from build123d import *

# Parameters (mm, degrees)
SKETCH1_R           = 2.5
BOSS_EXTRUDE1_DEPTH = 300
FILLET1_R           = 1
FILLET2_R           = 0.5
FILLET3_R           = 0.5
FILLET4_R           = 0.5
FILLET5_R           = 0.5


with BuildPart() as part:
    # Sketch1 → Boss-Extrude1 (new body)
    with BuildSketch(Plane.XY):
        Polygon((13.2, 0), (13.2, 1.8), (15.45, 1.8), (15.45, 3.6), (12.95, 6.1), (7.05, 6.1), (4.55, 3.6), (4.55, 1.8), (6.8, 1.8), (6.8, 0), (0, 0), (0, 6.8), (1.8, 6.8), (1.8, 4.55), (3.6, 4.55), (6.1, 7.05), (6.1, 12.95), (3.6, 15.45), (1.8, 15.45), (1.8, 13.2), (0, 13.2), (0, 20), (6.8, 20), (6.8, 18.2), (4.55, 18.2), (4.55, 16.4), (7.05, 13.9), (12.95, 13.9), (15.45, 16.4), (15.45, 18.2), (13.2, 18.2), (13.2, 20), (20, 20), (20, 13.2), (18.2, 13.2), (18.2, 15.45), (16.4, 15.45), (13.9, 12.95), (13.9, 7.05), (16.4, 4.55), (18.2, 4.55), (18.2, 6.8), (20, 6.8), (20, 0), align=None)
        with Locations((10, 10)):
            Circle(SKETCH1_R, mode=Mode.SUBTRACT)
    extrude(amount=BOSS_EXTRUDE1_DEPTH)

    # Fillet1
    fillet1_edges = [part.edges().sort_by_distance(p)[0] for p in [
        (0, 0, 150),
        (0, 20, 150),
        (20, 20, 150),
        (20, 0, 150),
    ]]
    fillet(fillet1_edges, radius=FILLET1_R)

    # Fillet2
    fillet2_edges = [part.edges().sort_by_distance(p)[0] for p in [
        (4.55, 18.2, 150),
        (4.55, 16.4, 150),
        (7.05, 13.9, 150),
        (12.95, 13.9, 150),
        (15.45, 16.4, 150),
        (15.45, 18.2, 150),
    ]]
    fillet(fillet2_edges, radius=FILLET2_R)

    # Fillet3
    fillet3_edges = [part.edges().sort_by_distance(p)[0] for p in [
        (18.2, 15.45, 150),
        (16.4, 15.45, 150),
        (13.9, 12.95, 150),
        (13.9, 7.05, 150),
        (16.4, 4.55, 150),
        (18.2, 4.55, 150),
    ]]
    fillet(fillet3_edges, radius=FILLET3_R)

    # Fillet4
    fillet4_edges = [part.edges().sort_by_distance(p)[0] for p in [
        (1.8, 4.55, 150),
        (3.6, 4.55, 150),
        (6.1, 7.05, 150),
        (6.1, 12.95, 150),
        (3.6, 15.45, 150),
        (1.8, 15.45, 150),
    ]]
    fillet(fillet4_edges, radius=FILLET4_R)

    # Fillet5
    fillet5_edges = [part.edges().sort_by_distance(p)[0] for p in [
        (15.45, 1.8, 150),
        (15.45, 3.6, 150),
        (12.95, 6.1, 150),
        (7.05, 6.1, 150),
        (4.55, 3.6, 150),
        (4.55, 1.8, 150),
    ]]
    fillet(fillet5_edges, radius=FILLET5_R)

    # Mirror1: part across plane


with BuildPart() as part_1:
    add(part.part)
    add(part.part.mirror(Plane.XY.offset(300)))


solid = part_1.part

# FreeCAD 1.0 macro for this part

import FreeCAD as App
import Part
import Sketcher
Q = App.Units.Quantity


def edges_at(feature, points):
    """Names of the edges that pass closest to the given points."""
    edges = feature.Shape.Edges
    near = lambda p: min(range(len(edges)), key=lambda i: edges[i].distToShape(Part.Vertex(*p))[0])
    return sorted({f"Edge{near(p) + 1}" for p in points})


def add_polygon(sketch, points):
    """Adds a closed chain of lines whose ends are joined by coincident constraints."""
    first, n = sketch.GeometryCount, len(points)
    for a, b in zip(points, points[1:] + points[:1]):
        sketch.addGeometry(Part.LineSegment(App.Vector(*a, 0), App.Vector(*b, 0)), False)
    for i in range(n):
        sketch.addConstraint(Sketcher.Constraint("Coincident", first + i, 2, first + (i + 1) % n, 1))

doc = App.newDocument("Part")
body = doc.addObject("PartDesign::Body", "Body")

# Sketch on XY plane
sketch1 = body.newObject("Sketcher::SketchObject", "Sketch")
sketch1.AttachmentSupport = (doc.getObject("XY_Plane"), [""])
sketch1.MapMode = "FlatFace"
add_polygon(sketch1, [(13.2, 1.8), (13.2, 0), (20, 0), (20, 6.8), (18.2, 6.8), (18.2, 4.55), (16.4, 4.55), (13.9, 7.05), (13.9, 12.95), (16.4, 15.45), (18.2, 15.45), (18.2, 13.2), (20, 13.2), (20, 20), (13.2, 20), (13.2, 18.2), (15.45, 18.2), (15.45, 16.4), (12.95, 13.9), (7.05, 13.9), (4.55, 16.4), (4.55, 18.2), (6.8, 18.2), (6.8, 20), (0, 20), (0, 13.2), (1.8, 13.2), (1.8, 15.45), (3.6, 15.45), (6.1, 12.95), (6.1, 7.05), (3.6, 4.55), (1.8, 4.55), (1.8, 6.8), (0, 6.8), (0, 0), (6.8, 0), (6.8, 1.8), (4.55, 1.8), (4.55, 3.6), (7.05, 6.1), (12.95, 6.1), (15.45, 3.6), (15.45, 1.8)])  # lines 0-43
sketch1.addGeometry(Part.Circle(App.Vector(10, 10, 0), App.Vector(0, 0, 1), 2.5), False)  # 44
sketch1.addConstraint([
    Sketcher.Constraint("Vertical", 0),
    Sketcher.Constraint("Horizontal", 1),
    Sketcher.Constraint("Vertical", 2),
    Sketcher.Constraint("Horizontal", 3),
    Sketcher.Constraint("Vertical", 4),
    Sketcher.Constraint("Horizontal", 5),
    Sketcher.Constraint("Vertical", 7),
    Sketcher.Constraint("Horizontal", 9),
    Sketcher.Constraint("Vertical", 10),
    Sketcher.Constraint("Horizontal", 11),
    Sketcher.Constraint("Vertical", 12),
    Sketcher.Constraint("Horizontal", 13),
    Sketcher.Constraint("Vertical", 14),
    Sketcher.Constraint("Horizontal", 15),
    Sketcher.Constraint("Vertical", 16),
    Sketcher.Constraint("Horizontal", 18),
    Sketcher.Constraint("Vertical", 20),
    Sketcher.Constraint("Horizontal", 21),
    Sketcher.Constraint("Vertical", 22),
    Sketcher.Constraint("Horizontal", 23),
    Sketcher.Constraint("Vertical", 24),
    Sketcher.Constraint("Horizontal", 25),
    Sketcher.Constraint("Vertical", 26),
    Sketcher.Constraint("Horizontal", 27),
    Sketcher.Constraint("Vertical", 29),
    Sketcher.Constraint("Horizontal", 31),
    Sketcher.Constraint("Vertical", 32),
    Sketcher.Constraint("Horizontal", 33),
    Sketcher.Constraint("Vertical", 34),
    Sketcher.Constraint("Horizontal", 35),
    Sketcher.Constraint("Vertical", 36),
    Sketcher.Constraint("Horizontal", 37),
    Sketcher.Constraint("Vertical", 38),
    Sketcher.Constraint("Horizontal", 40),
    Sketcher.Constraint("Vertical", 42),
    Sketcher.Constraint("Horizontal", 43),
    Sketcher.Constraint("Coincident", 34, 2, -1, 1),
    Sketcher.Constraint("PointOnObject", 0, 2, -1),
    Sketcher.Constraint("PointOnObject", 23, 2, -2),
    Sketcher.Constraint("Perpendicular", 6, 8),
    Sketcher.Constraint("Parallel", 8, 17),
    Sketcher.Constraint("Perpendicular", 17, 19),
    Sketcher.Constraint("Parallel", 19, 28),
    Sketcher.Constraint("Perpendicular", 28, 30),
    Sketcher.Constraint("Parallel", 30, 39),
    Sketcher.Constraint("Perpendicular", 39, 41),
    Sketcher.Constraint("Horizontal", 16, 2, 19, 2),
    Sketcher.Constraint("Horizontal", 15, 2, 20, 2),
    Sketcher.Constraint("Horizontal", 13, 2, 22, 2),
    Sketcher.Constraint("Horizontal", 11, 2, 24, 2),
    Sketcher.Constraint("Horizontal", 9, 2, 26, 2),
    Sketcher.Constraint("Horizontal", 7, 2, 28, 2),
    Sketcher.Constraint("Horizontal", 6, 2, 29, 2),
    Sketcher.Constraint("Horizontal", 5, 2, 30, 2),
    Sketcher.Constraint("Horizontal", 3, 2, 32, 2),
    Sketcher.Constraint("Horizontal", 38, 2, 41, 2),
    Sketcher.Constraint("Horizontal", 37, 2, 42, 2),
    Sketcher.Constraint("Vertical", 5, 2, 8, 2),
    Sketcher.Constraint("Vertical", 4, 2, 9, 2),
    Sketcher.Constraint("Vertical", 2, 2, 11, 2),
    Sketcher.Constraint("Vertical", 0, 2, 13, 2),
    Sketcher.Constraint("Vertical", 27, 2, 30, 2),
    Sketcher.Constraint("Vertical", 26, 2, 31, 2),
    Sketcher.Constraint("Vertical", 22, 2, 35, 2),
    Sketcher.Constraint("Vertical", 20, 2, 37, 2),
    Sketcher.Constraint("Vertical", 18, 2, 39, 2),
    Sketcher.Constraint("Vertical", 17, 2, 40, 2),
    Sketcher.Constraint("Equal", 3, 5),
    Sketcher.Constraint("Equal", 15, 21),
    Sketcher.Constraint("Equal", 13, 23),
    Sketcher.Constraint("Equal", 11, 25),
    Sketcher.Constraint("Equal", 25, 27),
    Sketcher.Constraint("Equal", 33, 0),
    Sketcher.Constraint("Equal", 35, 2),
    Sketcher.Constraint("Equal", 43, 4),
    Sketcher.Constraint("Equal", 40, 7),
    Sketcher.Constraint("Equal", 4, 10),
    Sketcher.Constraint("Equal", 2, 12),
    Sketcher.Constraint("Equal", 0, 14),
    Sketcher.Constraint("Equal", 14, 16),
    Sketcher.Constraint("Equal", 36, 38),
    Sketcher.Constraint("Equal", 8, 17),
    Sketcher.Constraint("Diameter", 44, Q("5 mm")),
    Sketcher.Constraint("DistanceX", 1, 1, 1, 2, Q("6.8 mm")),
    Sketcher.Constraint("DistanceX", 3, 2, 3, 1, Q("1.8 mm")),
    Sketcher.Constraint("DistanceX", 18, 2, 18, 1, Q("5.9 mm")),
    Sketcher.Constraint("DistanceX", -1, 1, 44, 3, Q("10 mm")),
    Sketcher.Constraint("DistanceY", -1, 1, 44, 3, Q("10 mm")),
    Sketcher.Constraint("DistanceX", -1, 1, 1, 2, Q("20 mm")),
    Sketcher.Constraint("DistanceX", 15, 1, 15, 2, Q("2.25 mm")),
])
pad1 = body.newObject("PartDesign::Pad", "Pad")
pad1.Profile = sketch1
pad1.Length = 300
doc.recompute()

fillet = body.newObject("PartDesign::Fillet", "Fillet")
fillet.Base = (pad1, edges_at(pad1, [
    (0, 0, 150),
    (0, 20, 150),
    (20, 20, 150),
    (20, 0, 150),
]))
fillet.Radius = 1
doc.recompute()

fillet2 = body.newObject("PartDesign::Fillet", "Fillet001")
fillet2.Base = (fillet, edges_at(fillet, [
    (4.55, 18.2, 150),
    (4.55, 16.4, 150),
    (7.05, 13.9, 150),
    (12.95, 13.9, 150),
    (15.45, 16.4, 150),
    (15.45, 18.2, 150),
]))
fillet2.Radius = 0.5
doc.recompute()

fillet3 = body.newObject("PartDesign::Fillet", "Fillet002")
fillet3.Base = (fillet2, edges_at(fillet2, [
    (18.2, 15.45, 150),
    (16.4, 15.45, 150),
    (13.9, 12.95, 150),
    (13.9, 7.05, 150),
    (16.4, 4.55, 150),
    (18.2, 4.55, 150),
]))
fillet3.Radius = 0.5
doc.recompute()

fillet4 = body.newObject("PartDesign::Fillet", "Fillet003")
fillet4.Base = (fillet3, edges_at(fillet3, [
    (1.8, 4.55, 150),
    (3.6, 4.55, 150),
    (6.1, 7.05, 150),
    (6.1, 12.95, 150),
    (3.6, 15.45, 150),
    (1.8, 15.45, 150),
]))
fillet4.Radius = 0.5
doc.recompute()

fillet5 = body.newObject("PartDesign::Fillet", "Fillet004")
fillet5.Base = (fillet4, edges_at(fillet4, [
    (15.45, 1.8, 150),
    (15.45, 3.6, 150),
    (12.95, 6.1, 150),
    (7.05, 6.1, 150),
    (4.55, 3.6, 150),
    (4.55, 1.8, 150),
]))
fillet5.Radius = 0.5
body2 = doc.addObject("PartDesign::Body", "Body001")
doc.recompute()

body2.BaseFeature = body
doc.recompute()

mirroring = doc.addObject("Part::Mirroring", "Mirroring")
mirroring.Source = body
mirroring.Base = App.Vector(0, 0, 300)
mirroring.Normal = App.Vector(0, 0, 1)
body3 = doc.addObject("PartDesign::Body", "Body002")
body3.BaseFeature = mirroring
boolean = body2.newObject("PartDesign::Boolean", "Boolean")
boolean.Type = "Fuse"
boolean.addObjects([body3])
doc.recompute()
mirroring.Visibility = False

doc.recompute()
